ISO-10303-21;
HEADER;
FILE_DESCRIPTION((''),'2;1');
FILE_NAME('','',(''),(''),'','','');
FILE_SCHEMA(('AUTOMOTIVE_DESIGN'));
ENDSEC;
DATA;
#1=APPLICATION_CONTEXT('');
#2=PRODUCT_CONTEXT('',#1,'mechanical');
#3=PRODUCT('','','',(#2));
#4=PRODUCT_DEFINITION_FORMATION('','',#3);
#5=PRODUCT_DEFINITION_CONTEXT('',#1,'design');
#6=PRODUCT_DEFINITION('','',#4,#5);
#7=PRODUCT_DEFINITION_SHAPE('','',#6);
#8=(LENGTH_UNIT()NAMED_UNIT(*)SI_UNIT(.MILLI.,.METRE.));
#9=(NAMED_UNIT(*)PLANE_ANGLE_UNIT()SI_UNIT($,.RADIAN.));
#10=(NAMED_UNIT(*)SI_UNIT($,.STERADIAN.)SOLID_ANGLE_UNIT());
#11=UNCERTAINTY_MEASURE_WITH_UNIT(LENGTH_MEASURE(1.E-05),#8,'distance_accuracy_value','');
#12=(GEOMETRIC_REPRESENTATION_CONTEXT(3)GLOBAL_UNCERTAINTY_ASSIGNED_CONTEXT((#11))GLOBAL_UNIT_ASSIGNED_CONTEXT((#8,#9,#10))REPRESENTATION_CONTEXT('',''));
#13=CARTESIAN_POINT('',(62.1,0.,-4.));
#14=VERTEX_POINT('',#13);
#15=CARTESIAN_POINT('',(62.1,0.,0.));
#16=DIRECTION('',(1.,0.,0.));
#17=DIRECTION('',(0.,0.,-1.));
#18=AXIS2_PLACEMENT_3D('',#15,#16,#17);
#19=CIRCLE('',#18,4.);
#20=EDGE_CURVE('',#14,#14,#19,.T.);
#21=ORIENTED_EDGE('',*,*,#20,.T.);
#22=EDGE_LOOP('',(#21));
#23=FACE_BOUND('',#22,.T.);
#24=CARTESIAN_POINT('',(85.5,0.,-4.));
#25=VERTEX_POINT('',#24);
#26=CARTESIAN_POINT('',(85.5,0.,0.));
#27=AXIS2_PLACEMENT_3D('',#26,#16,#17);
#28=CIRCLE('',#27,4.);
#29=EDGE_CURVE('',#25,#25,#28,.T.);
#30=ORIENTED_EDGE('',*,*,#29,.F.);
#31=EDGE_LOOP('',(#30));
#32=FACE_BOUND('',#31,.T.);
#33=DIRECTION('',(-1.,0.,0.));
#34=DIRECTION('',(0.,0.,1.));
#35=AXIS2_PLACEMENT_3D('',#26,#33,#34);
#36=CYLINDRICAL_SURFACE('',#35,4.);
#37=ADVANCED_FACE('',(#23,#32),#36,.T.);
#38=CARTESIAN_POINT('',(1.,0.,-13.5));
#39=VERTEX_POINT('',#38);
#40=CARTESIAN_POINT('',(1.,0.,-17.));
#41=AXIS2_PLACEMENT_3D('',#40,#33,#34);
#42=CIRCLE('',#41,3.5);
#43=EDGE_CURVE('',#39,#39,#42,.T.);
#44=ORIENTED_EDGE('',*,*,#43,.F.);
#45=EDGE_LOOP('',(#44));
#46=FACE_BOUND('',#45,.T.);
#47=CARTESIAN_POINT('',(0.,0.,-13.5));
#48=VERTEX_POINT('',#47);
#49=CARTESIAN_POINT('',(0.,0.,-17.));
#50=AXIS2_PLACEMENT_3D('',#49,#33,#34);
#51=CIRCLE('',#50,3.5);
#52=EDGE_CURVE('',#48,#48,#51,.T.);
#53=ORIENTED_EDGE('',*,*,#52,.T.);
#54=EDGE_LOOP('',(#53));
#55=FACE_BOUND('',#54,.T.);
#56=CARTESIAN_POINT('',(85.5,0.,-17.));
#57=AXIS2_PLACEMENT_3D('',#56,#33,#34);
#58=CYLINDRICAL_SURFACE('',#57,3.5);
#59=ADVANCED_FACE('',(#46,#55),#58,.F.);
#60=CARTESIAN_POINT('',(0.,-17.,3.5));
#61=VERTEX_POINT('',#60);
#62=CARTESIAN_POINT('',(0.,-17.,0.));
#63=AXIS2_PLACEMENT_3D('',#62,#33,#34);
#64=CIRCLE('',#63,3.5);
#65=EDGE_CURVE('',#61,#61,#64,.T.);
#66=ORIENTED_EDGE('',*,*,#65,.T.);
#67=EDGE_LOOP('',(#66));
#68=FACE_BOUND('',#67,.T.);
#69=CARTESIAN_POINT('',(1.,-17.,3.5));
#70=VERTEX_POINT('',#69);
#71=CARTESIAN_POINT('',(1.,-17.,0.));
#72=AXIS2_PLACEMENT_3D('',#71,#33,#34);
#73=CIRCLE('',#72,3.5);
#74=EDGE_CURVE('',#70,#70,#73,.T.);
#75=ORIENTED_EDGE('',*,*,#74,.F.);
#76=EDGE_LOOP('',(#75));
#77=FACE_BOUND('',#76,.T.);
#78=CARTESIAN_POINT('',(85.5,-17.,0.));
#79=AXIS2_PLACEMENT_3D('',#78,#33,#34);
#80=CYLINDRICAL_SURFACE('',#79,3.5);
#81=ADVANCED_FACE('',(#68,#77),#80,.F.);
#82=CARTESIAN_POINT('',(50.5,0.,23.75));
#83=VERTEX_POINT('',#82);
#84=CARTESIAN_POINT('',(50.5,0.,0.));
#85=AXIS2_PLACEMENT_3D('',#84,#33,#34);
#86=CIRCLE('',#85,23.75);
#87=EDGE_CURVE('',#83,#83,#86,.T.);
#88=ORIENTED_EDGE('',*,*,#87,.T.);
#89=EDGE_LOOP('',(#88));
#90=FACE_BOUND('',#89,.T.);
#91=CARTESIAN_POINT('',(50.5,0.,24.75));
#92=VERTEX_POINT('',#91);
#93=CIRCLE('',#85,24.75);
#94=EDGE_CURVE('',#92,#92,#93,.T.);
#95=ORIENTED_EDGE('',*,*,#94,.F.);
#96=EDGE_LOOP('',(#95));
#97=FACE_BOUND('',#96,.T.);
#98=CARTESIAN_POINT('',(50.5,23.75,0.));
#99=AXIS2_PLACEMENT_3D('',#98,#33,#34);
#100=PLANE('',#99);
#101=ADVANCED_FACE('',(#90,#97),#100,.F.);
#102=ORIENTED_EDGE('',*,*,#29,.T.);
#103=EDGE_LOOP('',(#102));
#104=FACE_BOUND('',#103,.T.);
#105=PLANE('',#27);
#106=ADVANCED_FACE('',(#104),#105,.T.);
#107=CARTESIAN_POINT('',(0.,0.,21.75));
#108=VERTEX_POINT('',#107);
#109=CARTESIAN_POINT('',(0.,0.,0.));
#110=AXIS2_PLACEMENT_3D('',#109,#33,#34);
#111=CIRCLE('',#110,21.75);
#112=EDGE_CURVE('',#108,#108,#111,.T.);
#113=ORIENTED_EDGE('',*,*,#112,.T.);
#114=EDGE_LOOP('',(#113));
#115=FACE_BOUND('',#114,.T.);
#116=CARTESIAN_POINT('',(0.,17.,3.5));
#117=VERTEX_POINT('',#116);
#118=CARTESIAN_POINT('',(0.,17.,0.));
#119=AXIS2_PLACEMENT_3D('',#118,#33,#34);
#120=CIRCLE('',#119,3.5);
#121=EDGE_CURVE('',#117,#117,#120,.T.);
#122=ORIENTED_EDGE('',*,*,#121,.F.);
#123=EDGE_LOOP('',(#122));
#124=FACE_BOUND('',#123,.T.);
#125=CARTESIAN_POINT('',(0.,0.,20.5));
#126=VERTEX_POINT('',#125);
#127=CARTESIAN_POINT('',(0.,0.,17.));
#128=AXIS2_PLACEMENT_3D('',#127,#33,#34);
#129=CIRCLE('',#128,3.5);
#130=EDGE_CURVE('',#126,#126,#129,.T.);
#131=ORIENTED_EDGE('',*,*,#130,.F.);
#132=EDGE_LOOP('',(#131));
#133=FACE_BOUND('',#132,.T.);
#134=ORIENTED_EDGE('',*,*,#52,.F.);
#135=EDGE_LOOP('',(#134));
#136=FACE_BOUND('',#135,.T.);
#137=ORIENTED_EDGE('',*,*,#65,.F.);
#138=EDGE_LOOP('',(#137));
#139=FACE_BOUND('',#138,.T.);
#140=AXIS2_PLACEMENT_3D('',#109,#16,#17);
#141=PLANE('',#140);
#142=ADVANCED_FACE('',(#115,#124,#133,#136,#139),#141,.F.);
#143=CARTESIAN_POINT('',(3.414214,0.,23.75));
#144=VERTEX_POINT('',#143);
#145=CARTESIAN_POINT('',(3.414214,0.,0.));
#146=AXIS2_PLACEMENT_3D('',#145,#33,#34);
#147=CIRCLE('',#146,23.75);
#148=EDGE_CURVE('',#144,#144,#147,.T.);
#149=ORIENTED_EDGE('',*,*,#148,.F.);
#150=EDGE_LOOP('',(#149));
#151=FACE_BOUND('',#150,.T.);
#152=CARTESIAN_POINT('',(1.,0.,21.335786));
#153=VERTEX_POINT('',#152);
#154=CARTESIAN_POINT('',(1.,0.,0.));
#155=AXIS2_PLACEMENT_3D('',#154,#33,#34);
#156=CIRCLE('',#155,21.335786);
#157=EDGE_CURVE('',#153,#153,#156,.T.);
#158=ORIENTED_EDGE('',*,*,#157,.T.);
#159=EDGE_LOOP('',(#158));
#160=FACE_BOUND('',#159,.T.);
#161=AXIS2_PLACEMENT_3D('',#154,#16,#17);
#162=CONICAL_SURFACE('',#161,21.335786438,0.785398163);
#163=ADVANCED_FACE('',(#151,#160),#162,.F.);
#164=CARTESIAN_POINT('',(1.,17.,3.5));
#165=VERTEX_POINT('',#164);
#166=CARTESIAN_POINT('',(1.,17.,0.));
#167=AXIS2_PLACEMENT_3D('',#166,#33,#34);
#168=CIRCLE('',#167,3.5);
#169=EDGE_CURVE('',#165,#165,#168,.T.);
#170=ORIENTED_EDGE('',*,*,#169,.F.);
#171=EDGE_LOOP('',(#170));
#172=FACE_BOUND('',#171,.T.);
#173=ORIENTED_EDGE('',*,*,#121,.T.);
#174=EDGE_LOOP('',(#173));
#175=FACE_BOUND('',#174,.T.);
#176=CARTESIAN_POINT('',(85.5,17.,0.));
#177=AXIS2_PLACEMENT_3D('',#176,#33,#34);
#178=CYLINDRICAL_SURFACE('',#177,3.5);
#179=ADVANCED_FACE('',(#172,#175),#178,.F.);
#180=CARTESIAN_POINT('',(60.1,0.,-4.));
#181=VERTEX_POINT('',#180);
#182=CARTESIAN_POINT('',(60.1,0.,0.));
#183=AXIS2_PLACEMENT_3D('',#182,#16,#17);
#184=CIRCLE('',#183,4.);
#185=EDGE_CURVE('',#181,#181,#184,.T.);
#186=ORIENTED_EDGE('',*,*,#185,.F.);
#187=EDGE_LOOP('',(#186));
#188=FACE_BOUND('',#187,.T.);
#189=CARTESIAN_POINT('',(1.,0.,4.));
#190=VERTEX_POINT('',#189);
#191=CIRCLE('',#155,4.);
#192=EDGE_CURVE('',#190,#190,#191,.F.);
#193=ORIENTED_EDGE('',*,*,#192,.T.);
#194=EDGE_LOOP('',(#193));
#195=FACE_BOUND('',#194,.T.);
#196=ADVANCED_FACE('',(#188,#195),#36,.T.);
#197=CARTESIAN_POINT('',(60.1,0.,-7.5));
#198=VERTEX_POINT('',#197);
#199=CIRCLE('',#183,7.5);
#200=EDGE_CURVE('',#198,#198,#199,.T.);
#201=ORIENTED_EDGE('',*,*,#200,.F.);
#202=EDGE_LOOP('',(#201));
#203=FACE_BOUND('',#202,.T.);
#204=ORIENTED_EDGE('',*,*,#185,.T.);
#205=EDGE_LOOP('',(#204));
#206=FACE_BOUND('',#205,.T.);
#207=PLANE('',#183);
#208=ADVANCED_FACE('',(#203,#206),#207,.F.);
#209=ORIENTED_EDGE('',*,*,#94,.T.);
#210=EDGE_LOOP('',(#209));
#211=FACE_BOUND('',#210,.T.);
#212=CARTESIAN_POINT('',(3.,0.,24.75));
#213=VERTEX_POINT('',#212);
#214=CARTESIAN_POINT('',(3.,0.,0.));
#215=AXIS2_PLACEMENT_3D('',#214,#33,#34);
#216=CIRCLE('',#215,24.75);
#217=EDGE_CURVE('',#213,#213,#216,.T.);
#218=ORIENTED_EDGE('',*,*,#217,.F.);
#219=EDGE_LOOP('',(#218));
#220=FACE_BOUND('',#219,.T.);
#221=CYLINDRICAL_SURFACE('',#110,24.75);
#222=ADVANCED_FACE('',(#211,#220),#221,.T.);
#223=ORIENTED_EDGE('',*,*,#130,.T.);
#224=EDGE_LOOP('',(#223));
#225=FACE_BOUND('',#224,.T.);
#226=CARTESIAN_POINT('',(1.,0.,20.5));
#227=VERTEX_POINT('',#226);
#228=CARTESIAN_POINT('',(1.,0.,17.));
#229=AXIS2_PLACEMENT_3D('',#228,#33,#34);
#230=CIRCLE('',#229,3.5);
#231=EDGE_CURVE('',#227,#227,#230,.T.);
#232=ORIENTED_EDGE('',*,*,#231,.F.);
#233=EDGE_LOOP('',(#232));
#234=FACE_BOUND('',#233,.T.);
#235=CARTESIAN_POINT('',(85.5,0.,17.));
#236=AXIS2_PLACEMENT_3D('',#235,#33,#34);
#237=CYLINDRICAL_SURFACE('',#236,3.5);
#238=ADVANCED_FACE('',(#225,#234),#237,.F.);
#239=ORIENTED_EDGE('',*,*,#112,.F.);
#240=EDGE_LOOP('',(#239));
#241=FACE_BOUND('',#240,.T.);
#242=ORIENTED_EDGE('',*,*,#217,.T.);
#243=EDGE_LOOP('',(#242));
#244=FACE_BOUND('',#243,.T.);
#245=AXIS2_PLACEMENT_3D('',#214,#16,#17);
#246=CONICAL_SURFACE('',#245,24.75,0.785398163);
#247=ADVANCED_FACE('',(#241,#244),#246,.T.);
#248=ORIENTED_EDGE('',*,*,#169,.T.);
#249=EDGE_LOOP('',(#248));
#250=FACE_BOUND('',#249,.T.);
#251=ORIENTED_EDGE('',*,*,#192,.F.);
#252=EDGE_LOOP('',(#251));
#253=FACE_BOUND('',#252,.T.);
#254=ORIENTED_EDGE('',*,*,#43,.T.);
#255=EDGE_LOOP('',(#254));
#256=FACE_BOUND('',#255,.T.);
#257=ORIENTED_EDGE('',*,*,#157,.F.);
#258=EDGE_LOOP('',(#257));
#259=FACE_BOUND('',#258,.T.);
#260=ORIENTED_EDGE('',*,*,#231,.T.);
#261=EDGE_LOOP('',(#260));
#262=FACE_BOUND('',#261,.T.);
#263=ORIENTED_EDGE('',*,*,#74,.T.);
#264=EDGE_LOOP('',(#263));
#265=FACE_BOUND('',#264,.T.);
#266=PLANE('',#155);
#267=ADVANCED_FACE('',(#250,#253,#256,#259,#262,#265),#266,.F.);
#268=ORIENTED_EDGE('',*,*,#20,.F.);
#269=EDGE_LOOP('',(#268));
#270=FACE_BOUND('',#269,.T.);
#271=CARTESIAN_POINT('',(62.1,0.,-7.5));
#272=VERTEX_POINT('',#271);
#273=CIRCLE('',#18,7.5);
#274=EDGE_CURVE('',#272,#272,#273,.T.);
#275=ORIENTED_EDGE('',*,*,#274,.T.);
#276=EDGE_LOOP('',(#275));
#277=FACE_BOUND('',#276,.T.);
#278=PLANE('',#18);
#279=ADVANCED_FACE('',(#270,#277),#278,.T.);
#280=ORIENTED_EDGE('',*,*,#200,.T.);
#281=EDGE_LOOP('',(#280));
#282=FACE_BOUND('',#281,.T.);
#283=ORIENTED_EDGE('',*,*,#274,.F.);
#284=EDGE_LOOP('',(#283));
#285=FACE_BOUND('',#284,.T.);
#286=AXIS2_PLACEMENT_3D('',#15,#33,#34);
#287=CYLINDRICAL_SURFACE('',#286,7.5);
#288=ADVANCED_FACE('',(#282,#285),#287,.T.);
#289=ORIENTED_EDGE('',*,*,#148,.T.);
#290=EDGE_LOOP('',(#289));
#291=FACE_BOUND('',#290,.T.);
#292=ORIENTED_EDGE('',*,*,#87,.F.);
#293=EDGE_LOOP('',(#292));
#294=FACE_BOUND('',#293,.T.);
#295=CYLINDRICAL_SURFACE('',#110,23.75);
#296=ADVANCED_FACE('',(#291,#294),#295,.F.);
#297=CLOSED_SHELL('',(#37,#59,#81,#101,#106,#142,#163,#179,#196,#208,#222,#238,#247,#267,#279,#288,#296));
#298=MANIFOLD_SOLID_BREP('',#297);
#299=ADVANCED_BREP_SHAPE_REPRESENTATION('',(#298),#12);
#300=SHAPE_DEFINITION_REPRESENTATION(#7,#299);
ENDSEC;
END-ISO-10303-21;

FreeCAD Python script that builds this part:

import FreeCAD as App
import Part
import Sketcher

V = App.Vector
Q = App.Units.Quantity


def add_polygon(sketch, points):
    """Adds a closed chain of lines whose ends are joined by coincident constraints."""
    first, n = sketch.GeometryCount, len(points)
    for a, b in zip(points, points[1:] + points[:1]):
        sketch.addGeometry(Part.LineSegment(App.Vector(*a, 0), App.Vector(*b, 0)), False)
    for i in range(n):
        sketch.addConstraint(Sketcher.Constraint("Coincident", first + i, 2, first + (i + 1) % n, 1))

doc = App.newDocument("Part")
params = doc.addObject("Spreadsheet::Sheet", "Params")
for row, (alias, value) in enumerate([
    ("sketch1_width", "1 mm"),
    ("sketch1_width2", "47.5 mm"),
    ("sketch1_height", "21.75 mm"),
    ("revolution_angle", "360 deg"),
    ("sketch2_diameter", "8 mm"),
    ("pad1_length", "85.5 mm"),
    ("sketch3_diameter", "7 mm"),
    ("sketch4_diameter", "15 mm"),
    ("pad2_length", "2 mm"),
], start=1):
    params.set(f"A{row}", alias)
    params.set(f"B{row}", "=" + value)
    params.setAlias(f"B{row}", alias)

body = doc.addObject("PartDesign::Body", "Body")

sketch1 = body.newObject("Sketcher::SketchObject", "Sketch")
sketch1.AttachmentSupport = (doc.getObject("XY_Plane"), [""])
sketch1.MapMode = "FlatFace"
add_polygon(sketch1, [(3, 24.8), (0, 21.8), (0, 0), (1, 0), (1, 21.3), (3.4, 23.8), (50.5, 23.8), (50.5, 24.8)])
sketch1.addConstraint([
    Sketcher.Constraint("Vertical", 1),
    Sketcher.Constraint("Horizontal", 2),
    Sketcher.Constraint("Vertical", 3),
    Sketcher.Constraint("Horizontal", 5),
    Sketcher.Constraint("Vertical", 6),
    Sketcher.Constraint("Horizontal", 7),
    Sketcher.Constraint("Coincident", 1, 2, -1, 1),
    Sketcher.Constraint("Parallel", 0, 4),
    Sketcher.Constraint("Equal", 2, 6),
    Sketcher.Constraint("DistanceX", 2, 1, 2, 2, 1.0),
    Sketcher.Constraint("Angle", 0, Q("-135 deg")),
    Sketcher.Constraint("DistanceX", 7, 2, 7, 1, 47.5),
    Sketcher.Constraint("DistanceX", -1, 1, 7, 2, 3.0),
    Sketcher.Constraint("DistanceY", 1, 2, 1, 1, 21.75),
    Sketcher.Constraint("DistanceX", 5, 1, 5, 2, 47.085786),
])
sketch1.setExpression("Constraints[17]", "Params.sketch1_width")
sketch1.setExpression("Constraints[19]", "Params.sketch1_width2")
sketch1.setExpression("Constraints[21]", "Params.sketch1_height")
revolution = body.newObject("PartDesign::Revolution", "Revolution")
revolution.Profile = sketch1
revolution.ReferenceAxis = (sketch1, ["H_Axis"])
revolution.setExpression("Angle", "Params.revolution_angle")

sketch2 = body.newObject("Sketcher::SketchObject", "Sketch001")
sketch2.AttachmentSupport = (doc.getObject("YZ_Plane"), [""])
sketch2.MapMode = "FlatFace"
sketch2.addGeometry(Part.Circle(V(0, 0, 0), V(0, 0, 1), 4), False)
sketch2.addConstraint([
    Sketcher.Constraint("Coincident", 0, 3, -1, 1),
    Sketcher.Constraint("Diameter", 0, 8.0),
])
sketch2.setExpression("Constraints[1]", "Params.sketch2_diameter")
pad1 = body.newObject("PartDesign::Pad", "Pad")
pad1.Profile = sketch2
pad1.setExpression("Length", "Params.pad1_length")

sketch3 = body.newObject("Sketcher::SketchObject", "Sketch002")
sketch3.AttachmentSupport = (doc.getObject("YZ_Plane"), [""])
sketch3.MapMode = "FlatFace"
sketch3.addGeometry([
    Part.Circle(V(17, 0, 0), V(0, 0, 1), 3.5),
    Part.Circle(V(0, 17, 0), V(0, 0, 1), 3.5),
    Part.Circle(V(-17, 0, 0), V(0, 0, 1), 3.5),
    Part.Circle(V(0, -17, 0), V(0, 0, 1), 3.5),
], False)
sketch3.addConstraint([
    Sketcher.Constraint("Equal", 0, 1),
    Sketcher.Constraint("Equal", 1, 2),
    Sketcher.Constraint("Equal", 2, 3),
    Sketcher.Constraint("Symmetric", 0, 3, 2, 3, -1, 1),
    Sketcher.Constraint("Symmetric", 1, 3, 3, 3, -1, 1),
    Sketcher.Constraint("PointOnObject", 0, 3, -1),
    Sketcher.Constraint("PointOnObject", 1, 3, -2),
    Sketcher.Constraint("Diameter", 0, 7.0),
    Sketcher.Constraint("DistanceX", -1, 1, 0, 3, 17.0),
    Sketcher.Constraint("DistanceY", -1, 1, 1, 3, 17.0),
])
sketch3.setExpression("Constraints[7]", "Params.sketch3_diameter")
pocket1 = body.newObject("PartDesign::Pocket", "Pocket")
pocket1.Profile = sketch3
pocket1.Type = "ThroughAll"
pocket1.Reversed = True

sketch4 = body.newObject("Sketcher::SketchObject", "Sketch003")
sketch4.AttachmentSupport = (doc.getObject("YZ_Plane"), [""])
sketch4.MapMode = "FlatFace"
sketch4.AttachmentOffset = App.Placement(V(0, 0, 60.1), App.Rotation())
sketch4.addGeometry(Part.Circle(V(0, 0, 0), V(0, 0, 1), 8), False)
sketch4.addConstraint([
    Sketcher.Constraint("Coincident", 0, 3, -1, 1),
    Sketcher.Constraint("Diameter", 0, 15.0),
])
sketch4.setExpression("Constraints[1]", "Params.sketch4_diameter")
pad2 = body.newObject("PartDesign::Pad", "Pad001")
pad2.Profile = sketch4
pad2.setExpression("Length", "Params.pad2_length")

doc.recompute()
